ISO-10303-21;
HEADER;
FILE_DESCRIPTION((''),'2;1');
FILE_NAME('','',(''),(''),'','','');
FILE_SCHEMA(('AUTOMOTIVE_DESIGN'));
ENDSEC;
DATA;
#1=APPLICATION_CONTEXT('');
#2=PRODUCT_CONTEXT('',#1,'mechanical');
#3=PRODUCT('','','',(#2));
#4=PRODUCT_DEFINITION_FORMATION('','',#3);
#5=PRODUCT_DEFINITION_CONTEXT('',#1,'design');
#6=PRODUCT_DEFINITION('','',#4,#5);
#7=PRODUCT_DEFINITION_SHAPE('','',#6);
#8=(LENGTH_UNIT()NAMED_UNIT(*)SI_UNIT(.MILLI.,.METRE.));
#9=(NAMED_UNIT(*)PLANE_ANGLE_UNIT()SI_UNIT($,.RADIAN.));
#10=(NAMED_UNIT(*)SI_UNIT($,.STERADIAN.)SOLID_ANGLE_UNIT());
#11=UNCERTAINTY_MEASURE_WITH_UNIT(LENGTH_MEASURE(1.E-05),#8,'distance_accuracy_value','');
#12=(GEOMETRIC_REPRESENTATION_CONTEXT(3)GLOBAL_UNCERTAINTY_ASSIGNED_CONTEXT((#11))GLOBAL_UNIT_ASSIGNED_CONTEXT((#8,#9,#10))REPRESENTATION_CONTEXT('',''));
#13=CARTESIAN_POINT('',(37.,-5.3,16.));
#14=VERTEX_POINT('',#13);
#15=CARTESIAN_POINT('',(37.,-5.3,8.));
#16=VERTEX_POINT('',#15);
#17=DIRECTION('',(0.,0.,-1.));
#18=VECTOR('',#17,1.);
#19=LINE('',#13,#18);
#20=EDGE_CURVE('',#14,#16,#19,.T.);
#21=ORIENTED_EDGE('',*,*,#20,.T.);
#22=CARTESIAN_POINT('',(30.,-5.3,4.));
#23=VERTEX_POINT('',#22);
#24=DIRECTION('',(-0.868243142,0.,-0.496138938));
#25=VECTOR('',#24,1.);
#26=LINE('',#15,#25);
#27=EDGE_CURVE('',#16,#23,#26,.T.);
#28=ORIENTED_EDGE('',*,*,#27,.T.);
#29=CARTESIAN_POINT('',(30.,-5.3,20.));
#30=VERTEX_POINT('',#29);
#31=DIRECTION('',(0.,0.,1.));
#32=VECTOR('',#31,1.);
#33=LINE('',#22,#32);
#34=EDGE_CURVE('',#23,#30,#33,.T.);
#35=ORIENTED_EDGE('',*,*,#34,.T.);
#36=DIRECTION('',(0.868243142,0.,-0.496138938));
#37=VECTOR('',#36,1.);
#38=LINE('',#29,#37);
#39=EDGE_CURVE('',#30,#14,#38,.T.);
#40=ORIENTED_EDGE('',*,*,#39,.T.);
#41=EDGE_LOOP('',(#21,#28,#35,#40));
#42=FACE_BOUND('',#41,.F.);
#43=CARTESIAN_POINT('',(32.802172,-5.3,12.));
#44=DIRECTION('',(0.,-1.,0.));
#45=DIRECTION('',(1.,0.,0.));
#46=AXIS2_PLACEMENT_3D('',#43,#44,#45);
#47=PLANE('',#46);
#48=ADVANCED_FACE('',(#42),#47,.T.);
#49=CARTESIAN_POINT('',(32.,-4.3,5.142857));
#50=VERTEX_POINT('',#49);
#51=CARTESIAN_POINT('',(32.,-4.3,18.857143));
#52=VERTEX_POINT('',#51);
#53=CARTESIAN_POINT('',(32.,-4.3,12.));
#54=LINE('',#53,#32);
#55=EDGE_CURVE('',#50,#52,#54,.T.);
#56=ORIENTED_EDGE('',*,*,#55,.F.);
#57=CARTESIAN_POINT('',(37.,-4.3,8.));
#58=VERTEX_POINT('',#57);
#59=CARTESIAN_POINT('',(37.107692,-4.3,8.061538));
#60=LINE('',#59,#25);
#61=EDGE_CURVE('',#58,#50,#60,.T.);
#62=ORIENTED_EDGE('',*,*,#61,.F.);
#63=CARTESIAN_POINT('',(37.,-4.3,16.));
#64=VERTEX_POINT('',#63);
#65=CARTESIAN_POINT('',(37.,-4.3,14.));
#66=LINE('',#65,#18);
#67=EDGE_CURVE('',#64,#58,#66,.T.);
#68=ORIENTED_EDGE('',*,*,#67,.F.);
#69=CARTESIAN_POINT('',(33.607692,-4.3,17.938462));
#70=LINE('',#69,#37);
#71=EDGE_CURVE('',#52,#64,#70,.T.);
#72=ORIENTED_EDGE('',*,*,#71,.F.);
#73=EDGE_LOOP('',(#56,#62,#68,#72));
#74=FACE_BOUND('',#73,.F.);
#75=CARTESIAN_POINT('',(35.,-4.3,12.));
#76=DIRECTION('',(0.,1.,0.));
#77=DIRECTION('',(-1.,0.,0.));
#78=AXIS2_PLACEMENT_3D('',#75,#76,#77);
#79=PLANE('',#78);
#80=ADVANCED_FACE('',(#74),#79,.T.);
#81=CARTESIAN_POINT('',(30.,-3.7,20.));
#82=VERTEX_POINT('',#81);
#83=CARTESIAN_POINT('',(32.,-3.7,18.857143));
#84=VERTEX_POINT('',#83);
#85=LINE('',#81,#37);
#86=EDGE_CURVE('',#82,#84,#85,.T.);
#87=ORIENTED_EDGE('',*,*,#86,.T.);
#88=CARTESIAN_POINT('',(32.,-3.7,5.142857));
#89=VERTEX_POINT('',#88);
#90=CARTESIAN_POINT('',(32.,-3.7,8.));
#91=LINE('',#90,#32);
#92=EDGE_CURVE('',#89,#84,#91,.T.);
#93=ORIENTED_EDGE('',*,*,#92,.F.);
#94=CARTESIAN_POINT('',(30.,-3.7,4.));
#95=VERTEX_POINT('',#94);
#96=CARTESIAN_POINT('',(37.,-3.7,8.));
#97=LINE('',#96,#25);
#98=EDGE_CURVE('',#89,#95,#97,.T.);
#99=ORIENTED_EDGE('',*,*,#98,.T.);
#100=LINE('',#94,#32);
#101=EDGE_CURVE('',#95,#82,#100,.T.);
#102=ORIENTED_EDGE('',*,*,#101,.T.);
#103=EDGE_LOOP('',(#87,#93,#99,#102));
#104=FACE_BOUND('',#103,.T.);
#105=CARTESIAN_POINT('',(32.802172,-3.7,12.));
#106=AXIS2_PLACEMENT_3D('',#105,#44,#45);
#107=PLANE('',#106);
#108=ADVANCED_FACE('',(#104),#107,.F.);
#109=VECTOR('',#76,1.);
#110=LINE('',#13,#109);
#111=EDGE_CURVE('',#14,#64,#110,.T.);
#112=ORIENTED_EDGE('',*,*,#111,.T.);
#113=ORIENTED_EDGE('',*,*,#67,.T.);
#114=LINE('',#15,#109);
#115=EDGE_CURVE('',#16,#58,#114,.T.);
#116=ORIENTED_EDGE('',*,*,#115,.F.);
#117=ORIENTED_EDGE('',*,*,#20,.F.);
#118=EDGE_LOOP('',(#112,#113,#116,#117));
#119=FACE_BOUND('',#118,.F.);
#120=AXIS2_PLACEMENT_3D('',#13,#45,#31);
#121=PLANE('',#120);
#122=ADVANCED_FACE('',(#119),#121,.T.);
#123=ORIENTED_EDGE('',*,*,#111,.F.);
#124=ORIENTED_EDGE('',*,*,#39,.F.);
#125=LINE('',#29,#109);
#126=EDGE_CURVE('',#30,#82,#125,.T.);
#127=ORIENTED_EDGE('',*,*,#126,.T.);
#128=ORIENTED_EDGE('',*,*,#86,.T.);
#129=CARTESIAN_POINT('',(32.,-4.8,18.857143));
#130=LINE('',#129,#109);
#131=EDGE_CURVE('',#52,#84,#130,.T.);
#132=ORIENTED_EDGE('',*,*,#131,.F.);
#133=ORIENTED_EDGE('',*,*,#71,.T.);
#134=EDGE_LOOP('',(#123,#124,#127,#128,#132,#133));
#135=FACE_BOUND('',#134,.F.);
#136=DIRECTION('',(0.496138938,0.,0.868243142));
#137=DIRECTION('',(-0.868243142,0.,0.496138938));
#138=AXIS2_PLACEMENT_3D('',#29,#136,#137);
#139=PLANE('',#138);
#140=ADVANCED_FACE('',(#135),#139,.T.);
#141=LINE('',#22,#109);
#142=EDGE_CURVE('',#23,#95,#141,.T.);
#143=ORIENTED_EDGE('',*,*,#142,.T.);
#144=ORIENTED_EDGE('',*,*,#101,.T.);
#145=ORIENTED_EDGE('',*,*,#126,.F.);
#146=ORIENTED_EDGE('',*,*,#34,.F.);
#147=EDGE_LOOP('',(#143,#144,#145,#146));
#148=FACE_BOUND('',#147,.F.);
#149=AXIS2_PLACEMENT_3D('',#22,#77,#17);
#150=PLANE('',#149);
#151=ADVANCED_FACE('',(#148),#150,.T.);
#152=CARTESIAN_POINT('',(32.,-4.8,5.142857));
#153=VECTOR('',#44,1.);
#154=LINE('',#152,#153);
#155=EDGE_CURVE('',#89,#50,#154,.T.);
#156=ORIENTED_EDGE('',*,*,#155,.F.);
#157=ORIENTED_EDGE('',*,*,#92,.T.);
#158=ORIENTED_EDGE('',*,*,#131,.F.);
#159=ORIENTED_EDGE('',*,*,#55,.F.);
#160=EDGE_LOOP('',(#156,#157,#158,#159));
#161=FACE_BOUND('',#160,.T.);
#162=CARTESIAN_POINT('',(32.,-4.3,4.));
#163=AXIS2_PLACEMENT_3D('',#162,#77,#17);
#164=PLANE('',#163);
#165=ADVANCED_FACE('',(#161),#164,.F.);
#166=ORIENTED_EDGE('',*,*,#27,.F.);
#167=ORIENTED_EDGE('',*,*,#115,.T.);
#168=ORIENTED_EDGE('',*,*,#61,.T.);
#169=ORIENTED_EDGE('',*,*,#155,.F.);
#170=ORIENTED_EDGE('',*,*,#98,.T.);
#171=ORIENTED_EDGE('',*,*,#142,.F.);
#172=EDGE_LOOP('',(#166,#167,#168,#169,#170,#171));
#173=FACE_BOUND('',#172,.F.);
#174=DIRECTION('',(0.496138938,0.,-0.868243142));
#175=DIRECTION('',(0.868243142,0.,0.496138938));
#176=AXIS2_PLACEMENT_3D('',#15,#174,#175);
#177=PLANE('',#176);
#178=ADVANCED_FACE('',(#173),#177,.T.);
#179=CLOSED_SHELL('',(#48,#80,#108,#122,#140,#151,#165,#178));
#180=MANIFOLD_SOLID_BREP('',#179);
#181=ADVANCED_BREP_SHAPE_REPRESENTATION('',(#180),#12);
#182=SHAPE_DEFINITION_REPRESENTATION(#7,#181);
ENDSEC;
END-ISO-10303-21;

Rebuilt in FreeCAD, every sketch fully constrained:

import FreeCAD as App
import Part
import Sketcher
Q = App.Units.Quantity


def add_polygon(sketch, points):
    """Adds a closed chain of lines whose ends are joined by coincident constraints."""
    first, n = sketch.GeometryCount, len(points)
    for a, b in zip(points, points[1:] + points[:1]):
        sketch.addGeometry(Part.LineSegment(App.Vector(*a, 0), App.Vector(*b, 0)), False)
    for i in range(n):
        sketch.addConstraint(Sketcher.Constraint("Coincident", first + i, 2, first + (i + 1) % n, 1))

doc = App.newDocument("Part")
body = doc.addObject("PartDesign::Body", "Body")

# Sketch on XZ plane
sketch1 = doc.addObject("Sketcher::SketchObject", "Sketch")
body.addObject(sketch1)
sketch1.AttachmentSupport = (doc.XZ_Plane, [""])
sketch1.MapMode = "FlatFace"
sketch1.AttachmentOffset = App.Placement(App.Vector(0, 0, -4.3), App.Rotation())
add_polygon(sketch1, [(32, 20), (32, 4), (38, 4), (38, 20)])  # lines 0-3
sketch1.addConstraint(Sketcher.Constraint("Vertical", 0))
sketch1.addConstraint(Sketcher.Constraint("Horizontal", 1))
sketch1.addConstraint(Sketcher.Constraint("Vertical", 2))
sketch1.addConstraint(Sketcher.Constraint("Horizontal", 3))
sketch1.addConstraint(Sketcher.Constraint("DistanceX", 1, 1, 1, 2, Q("6 mm")))
sketch1.addConstraint(Sketcher.Constraint("DistanceY", 0, 2, 0, 1, Q("16 mm")))
sketch1.addConstraint(Sketcher.Constraint("DistanceX", -1, 1, 0, 2, Q("32 mm")))
sketch1.addConstraint(Sketcher.Constraint("DistanceY", -1, 1, 0, 2, Q("4 mm")))
pad1 = doc.addObject("PartDesign::Pad", "Pad")
body.addObject(pad1)
pad1.Profile = sketch1
pad1.Length = 1.6
body2 = doc.addObject("PartDesign::Body", "Body001")

# Sketch on XZ plane
sketch2 = doc.addObject("Sketcher::SketchObject", "Sketch001")
body2.addObject(sketch2)
sketch2.AttachmentSupport = (doc.getObject("XZ_Plane001"), [""])
sketch2.MapMode = "FlatFace"
sketch2.AttachmentOffset = App.Placement(App.Vector(0, 0, -5.3), App.Rotation())
add_polygon(sketch2, [(37, 8), (37, 16), (30, 20), (30, 4)])  # lines 0-3
sketch2.addConstraint(Sketcher.Constraint("Vertical", 0))
sketch2.addConstraint(Sketcher.Constraint("Vertical", 2))
sketch2.addConstraint(Sketcher.Constraint("Equal", 1, 3))
sketch2.addConstraint(Sketcher.Constraint("DistanceY", 0, 1, 0, 2, Q("8 mm")))
sketch2.addConstraint(Sketcher.Constraint("DistanceY", 2, 2, 2, 1, Q("16 mm")))
sketch2.addConstraint(Sketcher.Constraint("DistanceX", -1, 1, 0, 2, Q("37 mm")))
sketch2.addConstraint(Sketcher.Constraint("DistanceY", -1, 1, 0, 2, Q("16 mm")))
sketch2.addConstraint(Sketcher.Constraint("DistanceX", -1, 1, 1, 2, Q("30 mm")))
pad2 = doc.addObject("PartDesign::Pad", "Pad001")
body2.addObject(pad2)
pad2.Profile = sketch2
pad2.Length = 1.6
doc.recompute()

boolean = doc.addObject("PartDesign::Boolean", "Boolean")
body2.addObject(boolean)
boolean.Type = "Cut"
boolean.addObjects([body])
body3 = doc.addObject("PartDesign::Body", "Body002")
doc.recompute()

mirroring = doc.addObject("Part::Mirroring", "Mirroring")
mirroring.Source = body2
mirroring.Base = App.Vector(0, 0, 0)
mirroring.Normal = App.Vector(0, 1, 0)
body3.BaseFeature = mirroring
doc.recompute()
body2.Visibility = False
mirroring.Visibility = False

doc.recompute()
